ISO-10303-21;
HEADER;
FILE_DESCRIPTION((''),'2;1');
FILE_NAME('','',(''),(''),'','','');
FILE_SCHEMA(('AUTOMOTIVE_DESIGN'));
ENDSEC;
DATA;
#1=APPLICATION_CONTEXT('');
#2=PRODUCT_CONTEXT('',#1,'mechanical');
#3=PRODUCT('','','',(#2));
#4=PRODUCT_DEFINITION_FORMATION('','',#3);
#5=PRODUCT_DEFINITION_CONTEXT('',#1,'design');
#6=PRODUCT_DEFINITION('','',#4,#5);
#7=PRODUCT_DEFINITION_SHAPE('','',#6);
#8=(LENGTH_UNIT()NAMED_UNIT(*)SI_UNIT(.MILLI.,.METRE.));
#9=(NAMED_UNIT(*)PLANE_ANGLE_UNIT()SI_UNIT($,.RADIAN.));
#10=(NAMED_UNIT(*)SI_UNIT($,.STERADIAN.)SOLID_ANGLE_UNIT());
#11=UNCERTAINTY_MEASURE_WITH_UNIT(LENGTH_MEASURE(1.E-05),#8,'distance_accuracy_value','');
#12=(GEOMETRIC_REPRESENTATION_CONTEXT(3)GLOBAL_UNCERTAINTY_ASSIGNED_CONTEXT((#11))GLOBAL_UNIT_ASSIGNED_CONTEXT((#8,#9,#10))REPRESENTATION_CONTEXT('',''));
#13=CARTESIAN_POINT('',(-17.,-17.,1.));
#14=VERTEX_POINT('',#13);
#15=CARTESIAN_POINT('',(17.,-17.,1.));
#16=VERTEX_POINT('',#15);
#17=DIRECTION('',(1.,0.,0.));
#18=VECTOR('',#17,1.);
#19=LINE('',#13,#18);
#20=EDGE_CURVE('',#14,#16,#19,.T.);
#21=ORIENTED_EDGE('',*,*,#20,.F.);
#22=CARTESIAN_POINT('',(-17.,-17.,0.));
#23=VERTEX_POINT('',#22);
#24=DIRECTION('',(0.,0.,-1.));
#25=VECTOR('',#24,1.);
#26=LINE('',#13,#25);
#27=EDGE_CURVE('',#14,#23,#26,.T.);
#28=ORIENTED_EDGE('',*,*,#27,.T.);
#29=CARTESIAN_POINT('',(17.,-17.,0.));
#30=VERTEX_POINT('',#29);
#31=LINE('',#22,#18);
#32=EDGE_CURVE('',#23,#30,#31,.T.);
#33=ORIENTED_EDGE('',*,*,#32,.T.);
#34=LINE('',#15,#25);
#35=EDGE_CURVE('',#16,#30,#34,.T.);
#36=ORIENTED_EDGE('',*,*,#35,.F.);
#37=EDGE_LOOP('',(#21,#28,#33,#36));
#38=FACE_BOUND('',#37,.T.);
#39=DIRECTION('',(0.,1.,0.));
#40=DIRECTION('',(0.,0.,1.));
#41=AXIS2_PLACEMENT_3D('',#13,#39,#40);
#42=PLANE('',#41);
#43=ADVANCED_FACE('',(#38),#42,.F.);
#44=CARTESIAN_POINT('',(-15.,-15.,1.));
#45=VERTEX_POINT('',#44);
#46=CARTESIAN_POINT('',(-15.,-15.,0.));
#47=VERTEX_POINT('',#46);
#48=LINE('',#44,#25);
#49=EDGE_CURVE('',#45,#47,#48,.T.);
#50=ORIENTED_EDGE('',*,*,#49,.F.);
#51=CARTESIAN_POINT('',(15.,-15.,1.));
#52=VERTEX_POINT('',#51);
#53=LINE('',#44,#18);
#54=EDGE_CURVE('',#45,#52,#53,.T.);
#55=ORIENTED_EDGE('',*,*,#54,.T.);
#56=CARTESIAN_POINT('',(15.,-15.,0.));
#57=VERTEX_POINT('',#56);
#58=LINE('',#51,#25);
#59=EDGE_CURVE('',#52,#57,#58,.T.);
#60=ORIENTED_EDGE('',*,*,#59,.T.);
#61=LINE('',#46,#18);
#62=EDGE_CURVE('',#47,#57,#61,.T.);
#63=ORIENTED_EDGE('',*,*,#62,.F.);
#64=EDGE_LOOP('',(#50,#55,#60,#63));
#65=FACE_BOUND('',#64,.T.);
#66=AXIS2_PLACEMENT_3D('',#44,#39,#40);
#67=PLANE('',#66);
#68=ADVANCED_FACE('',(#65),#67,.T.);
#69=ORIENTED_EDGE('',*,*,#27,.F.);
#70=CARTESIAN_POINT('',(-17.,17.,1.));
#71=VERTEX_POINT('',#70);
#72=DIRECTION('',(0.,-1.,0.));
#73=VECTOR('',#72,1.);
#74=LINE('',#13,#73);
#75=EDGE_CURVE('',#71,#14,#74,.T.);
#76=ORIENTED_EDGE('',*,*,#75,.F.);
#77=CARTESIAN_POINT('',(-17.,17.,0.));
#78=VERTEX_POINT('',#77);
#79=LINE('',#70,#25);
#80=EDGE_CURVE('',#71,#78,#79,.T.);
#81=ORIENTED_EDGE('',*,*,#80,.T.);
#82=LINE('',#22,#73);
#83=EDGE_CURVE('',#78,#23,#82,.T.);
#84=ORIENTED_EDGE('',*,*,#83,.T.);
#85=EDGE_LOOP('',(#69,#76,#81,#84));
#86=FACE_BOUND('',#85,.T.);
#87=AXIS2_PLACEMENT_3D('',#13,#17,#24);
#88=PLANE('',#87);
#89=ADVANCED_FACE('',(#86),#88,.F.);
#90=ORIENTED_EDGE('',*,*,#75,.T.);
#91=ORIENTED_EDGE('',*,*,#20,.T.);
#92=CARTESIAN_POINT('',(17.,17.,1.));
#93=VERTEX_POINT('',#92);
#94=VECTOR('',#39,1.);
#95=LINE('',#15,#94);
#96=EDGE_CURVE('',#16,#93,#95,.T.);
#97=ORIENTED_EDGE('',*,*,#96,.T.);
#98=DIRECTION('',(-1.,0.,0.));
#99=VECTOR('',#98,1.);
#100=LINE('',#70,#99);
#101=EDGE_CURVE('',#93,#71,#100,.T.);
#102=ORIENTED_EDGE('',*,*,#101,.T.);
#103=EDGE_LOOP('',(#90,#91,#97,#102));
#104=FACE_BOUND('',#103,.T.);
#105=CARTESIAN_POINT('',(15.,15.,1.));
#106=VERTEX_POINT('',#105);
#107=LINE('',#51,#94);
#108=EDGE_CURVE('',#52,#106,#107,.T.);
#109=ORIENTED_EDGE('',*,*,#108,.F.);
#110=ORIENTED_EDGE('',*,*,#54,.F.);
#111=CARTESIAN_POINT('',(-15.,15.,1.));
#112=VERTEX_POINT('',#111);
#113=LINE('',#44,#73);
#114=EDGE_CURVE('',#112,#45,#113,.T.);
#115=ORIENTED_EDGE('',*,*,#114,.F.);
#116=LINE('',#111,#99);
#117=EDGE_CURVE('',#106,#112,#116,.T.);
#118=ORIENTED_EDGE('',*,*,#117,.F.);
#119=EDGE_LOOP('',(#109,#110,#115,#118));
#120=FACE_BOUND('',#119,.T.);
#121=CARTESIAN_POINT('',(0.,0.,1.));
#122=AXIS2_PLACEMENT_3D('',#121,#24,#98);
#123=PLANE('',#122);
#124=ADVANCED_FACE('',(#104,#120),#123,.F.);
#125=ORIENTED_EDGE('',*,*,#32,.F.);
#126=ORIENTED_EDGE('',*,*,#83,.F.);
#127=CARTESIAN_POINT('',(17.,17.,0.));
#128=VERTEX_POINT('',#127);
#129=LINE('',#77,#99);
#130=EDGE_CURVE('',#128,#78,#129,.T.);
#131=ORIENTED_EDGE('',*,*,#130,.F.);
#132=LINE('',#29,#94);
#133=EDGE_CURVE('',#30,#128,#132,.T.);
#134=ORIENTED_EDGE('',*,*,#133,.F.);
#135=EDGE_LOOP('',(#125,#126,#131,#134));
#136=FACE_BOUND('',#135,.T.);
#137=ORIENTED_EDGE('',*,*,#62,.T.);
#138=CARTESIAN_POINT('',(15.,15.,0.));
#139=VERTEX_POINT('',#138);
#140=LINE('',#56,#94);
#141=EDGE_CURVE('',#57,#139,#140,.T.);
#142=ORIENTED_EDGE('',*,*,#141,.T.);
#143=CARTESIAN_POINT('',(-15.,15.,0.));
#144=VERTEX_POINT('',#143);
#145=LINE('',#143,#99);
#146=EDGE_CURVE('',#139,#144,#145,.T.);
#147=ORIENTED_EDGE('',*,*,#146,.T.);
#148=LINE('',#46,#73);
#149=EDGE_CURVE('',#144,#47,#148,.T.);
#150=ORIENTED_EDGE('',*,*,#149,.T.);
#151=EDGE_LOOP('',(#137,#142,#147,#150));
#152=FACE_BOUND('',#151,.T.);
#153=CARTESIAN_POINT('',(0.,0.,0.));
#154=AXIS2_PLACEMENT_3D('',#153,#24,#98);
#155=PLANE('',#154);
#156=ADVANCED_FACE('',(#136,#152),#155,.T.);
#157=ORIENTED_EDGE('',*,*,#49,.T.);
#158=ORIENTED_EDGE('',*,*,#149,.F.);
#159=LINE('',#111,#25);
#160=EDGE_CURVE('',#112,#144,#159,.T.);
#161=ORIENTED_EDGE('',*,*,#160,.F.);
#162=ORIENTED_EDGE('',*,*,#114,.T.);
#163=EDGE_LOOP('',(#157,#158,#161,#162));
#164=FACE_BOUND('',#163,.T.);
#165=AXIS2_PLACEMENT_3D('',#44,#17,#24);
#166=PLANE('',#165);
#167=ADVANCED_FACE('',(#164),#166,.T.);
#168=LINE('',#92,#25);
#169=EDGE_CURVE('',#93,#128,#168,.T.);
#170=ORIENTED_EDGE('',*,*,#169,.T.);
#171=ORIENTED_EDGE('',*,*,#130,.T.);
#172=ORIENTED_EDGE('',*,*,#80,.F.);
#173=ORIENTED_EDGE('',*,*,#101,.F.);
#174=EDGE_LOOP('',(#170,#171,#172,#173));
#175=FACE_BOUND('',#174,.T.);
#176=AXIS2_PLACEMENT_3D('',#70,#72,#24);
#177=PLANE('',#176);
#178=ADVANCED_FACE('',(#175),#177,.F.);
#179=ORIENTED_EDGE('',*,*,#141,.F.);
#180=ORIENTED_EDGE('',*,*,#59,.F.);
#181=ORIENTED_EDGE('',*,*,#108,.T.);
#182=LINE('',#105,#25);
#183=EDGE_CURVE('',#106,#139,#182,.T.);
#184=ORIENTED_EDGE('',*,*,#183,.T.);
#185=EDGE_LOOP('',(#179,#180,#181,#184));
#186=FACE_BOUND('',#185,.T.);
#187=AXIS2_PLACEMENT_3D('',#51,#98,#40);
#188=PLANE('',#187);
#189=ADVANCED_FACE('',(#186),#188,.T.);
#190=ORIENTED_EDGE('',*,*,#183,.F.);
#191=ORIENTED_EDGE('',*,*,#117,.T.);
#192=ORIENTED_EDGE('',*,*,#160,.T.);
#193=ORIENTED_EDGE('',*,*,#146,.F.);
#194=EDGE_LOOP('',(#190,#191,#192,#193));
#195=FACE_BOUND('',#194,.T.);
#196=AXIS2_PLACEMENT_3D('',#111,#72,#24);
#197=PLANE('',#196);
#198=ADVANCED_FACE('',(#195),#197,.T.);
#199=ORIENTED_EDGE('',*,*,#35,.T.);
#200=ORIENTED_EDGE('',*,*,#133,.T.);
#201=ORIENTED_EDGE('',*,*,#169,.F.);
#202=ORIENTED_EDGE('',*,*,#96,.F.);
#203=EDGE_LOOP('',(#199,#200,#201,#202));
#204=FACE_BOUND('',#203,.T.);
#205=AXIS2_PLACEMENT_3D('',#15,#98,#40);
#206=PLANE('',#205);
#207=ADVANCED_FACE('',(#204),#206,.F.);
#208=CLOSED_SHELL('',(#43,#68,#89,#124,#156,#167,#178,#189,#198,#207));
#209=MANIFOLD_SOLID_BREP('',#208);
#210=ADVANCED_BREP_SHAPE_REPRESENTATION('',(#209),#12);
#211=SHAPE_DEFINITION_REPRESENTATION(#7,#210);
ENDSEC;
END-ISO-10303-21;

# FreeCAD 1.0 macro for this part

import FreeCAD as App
import Part
import Sketcher

doc = App.newDocument("Part")
body = doc.addObject("PartDesign::Body", "Body")

sketch1 = body.newObject("Sketcher::SketchObject", "Sketch")
sketch1.AttachmentSupport = (doc.getObject("XY_Plane"), [""])
sketch1.MapMode = "FlatFace"
sketch1.addGeometry([
    Part.LineSegment(App.Vector(-17, 17, 0), App.Vector(-17, -17, 0)),
    Part.LineSegment(App.Vector(-17, -17, 0), App.Vector(17, -17, 0)),
    Part.LineSegment(App.Vector(17, -17, 0), App.Vector(17, 17, 0)),
    Part.LineSegment(App.Vector(17, 17, 0), App.Vector(-17, 17, 0)),
    Part.LineSegment(App.Vector(15, -15, 0), App.Vector(-15, -15, 0)),
    Part.LineSegment(App.Vector(-15, -15, 0), App.Vector(-15, 15, 0)),
    Part.LineSegment(App.Vector(-15, 15, 0), App.Vector(15, 15, 0)),
    Part.LineSegment(App.Vector(15, 15, 0), App.Vector(15, -15, 0)),
], False)
sketch1.addConstraint([
    Sketcher.Constraint("Coincident", 0, 2, 1, 1),
    Sketcher.Constraint("Coincident", 1, 2, 2, 1),
    Sketcher.Constraint("Coincident", 2, 2, 3, 1),
    Sketcher.Constraint("Coincident", 3, 2, 0, 1),
    Sketcher.Constraint("Coincident", 4, 2, 5, 1),
    Sketcher.Constraint("Coincident", 5, 2, 6, 1),
    Sketcher.Constraint("Coincident", 6, 2, 7, 1),
    Sketcher.Constraint("Coincident", 7, 2, 4, 1),
    Sketcher.Constraint("Vertical", 0),
    Sketcher.Constraint("Horizontal", 1),
    Sketcher.Constraint("Vertical", 2),
    Sketcher.Constraint("Horizontal", 3),
    Sketcher.Constraint("Horizontal", 4),
    Sketcher.Constraint("Vertical", 5),
    Sketcher.Constraint("Horizontal", 6),
    Sketcher.Constraint("Vertical", 7),
    Sketcher.Constraint("Symmetric", 0, 2, 2, 2, -1, 1),
    Sketcher.Constraint("Symmetric", 4, 2, 6, 2, -1, 1),
    Sketcher.Constraint("Equal", 3, 0),
    Sketcher.Constraint("Equal", 6, 5),
    Sketcher.Constraint("DistanceX", 1, 1, 1, 2, 34.0),
    Sketcher.Constraint("DistanceX", 4, 2, 4, 1, 30.0),
])
pad1 = body.newObject("PartDesign::Pad", "Pad")
pad1.Profile = sketch1
pad1.Length = 1

doc.recompute()
